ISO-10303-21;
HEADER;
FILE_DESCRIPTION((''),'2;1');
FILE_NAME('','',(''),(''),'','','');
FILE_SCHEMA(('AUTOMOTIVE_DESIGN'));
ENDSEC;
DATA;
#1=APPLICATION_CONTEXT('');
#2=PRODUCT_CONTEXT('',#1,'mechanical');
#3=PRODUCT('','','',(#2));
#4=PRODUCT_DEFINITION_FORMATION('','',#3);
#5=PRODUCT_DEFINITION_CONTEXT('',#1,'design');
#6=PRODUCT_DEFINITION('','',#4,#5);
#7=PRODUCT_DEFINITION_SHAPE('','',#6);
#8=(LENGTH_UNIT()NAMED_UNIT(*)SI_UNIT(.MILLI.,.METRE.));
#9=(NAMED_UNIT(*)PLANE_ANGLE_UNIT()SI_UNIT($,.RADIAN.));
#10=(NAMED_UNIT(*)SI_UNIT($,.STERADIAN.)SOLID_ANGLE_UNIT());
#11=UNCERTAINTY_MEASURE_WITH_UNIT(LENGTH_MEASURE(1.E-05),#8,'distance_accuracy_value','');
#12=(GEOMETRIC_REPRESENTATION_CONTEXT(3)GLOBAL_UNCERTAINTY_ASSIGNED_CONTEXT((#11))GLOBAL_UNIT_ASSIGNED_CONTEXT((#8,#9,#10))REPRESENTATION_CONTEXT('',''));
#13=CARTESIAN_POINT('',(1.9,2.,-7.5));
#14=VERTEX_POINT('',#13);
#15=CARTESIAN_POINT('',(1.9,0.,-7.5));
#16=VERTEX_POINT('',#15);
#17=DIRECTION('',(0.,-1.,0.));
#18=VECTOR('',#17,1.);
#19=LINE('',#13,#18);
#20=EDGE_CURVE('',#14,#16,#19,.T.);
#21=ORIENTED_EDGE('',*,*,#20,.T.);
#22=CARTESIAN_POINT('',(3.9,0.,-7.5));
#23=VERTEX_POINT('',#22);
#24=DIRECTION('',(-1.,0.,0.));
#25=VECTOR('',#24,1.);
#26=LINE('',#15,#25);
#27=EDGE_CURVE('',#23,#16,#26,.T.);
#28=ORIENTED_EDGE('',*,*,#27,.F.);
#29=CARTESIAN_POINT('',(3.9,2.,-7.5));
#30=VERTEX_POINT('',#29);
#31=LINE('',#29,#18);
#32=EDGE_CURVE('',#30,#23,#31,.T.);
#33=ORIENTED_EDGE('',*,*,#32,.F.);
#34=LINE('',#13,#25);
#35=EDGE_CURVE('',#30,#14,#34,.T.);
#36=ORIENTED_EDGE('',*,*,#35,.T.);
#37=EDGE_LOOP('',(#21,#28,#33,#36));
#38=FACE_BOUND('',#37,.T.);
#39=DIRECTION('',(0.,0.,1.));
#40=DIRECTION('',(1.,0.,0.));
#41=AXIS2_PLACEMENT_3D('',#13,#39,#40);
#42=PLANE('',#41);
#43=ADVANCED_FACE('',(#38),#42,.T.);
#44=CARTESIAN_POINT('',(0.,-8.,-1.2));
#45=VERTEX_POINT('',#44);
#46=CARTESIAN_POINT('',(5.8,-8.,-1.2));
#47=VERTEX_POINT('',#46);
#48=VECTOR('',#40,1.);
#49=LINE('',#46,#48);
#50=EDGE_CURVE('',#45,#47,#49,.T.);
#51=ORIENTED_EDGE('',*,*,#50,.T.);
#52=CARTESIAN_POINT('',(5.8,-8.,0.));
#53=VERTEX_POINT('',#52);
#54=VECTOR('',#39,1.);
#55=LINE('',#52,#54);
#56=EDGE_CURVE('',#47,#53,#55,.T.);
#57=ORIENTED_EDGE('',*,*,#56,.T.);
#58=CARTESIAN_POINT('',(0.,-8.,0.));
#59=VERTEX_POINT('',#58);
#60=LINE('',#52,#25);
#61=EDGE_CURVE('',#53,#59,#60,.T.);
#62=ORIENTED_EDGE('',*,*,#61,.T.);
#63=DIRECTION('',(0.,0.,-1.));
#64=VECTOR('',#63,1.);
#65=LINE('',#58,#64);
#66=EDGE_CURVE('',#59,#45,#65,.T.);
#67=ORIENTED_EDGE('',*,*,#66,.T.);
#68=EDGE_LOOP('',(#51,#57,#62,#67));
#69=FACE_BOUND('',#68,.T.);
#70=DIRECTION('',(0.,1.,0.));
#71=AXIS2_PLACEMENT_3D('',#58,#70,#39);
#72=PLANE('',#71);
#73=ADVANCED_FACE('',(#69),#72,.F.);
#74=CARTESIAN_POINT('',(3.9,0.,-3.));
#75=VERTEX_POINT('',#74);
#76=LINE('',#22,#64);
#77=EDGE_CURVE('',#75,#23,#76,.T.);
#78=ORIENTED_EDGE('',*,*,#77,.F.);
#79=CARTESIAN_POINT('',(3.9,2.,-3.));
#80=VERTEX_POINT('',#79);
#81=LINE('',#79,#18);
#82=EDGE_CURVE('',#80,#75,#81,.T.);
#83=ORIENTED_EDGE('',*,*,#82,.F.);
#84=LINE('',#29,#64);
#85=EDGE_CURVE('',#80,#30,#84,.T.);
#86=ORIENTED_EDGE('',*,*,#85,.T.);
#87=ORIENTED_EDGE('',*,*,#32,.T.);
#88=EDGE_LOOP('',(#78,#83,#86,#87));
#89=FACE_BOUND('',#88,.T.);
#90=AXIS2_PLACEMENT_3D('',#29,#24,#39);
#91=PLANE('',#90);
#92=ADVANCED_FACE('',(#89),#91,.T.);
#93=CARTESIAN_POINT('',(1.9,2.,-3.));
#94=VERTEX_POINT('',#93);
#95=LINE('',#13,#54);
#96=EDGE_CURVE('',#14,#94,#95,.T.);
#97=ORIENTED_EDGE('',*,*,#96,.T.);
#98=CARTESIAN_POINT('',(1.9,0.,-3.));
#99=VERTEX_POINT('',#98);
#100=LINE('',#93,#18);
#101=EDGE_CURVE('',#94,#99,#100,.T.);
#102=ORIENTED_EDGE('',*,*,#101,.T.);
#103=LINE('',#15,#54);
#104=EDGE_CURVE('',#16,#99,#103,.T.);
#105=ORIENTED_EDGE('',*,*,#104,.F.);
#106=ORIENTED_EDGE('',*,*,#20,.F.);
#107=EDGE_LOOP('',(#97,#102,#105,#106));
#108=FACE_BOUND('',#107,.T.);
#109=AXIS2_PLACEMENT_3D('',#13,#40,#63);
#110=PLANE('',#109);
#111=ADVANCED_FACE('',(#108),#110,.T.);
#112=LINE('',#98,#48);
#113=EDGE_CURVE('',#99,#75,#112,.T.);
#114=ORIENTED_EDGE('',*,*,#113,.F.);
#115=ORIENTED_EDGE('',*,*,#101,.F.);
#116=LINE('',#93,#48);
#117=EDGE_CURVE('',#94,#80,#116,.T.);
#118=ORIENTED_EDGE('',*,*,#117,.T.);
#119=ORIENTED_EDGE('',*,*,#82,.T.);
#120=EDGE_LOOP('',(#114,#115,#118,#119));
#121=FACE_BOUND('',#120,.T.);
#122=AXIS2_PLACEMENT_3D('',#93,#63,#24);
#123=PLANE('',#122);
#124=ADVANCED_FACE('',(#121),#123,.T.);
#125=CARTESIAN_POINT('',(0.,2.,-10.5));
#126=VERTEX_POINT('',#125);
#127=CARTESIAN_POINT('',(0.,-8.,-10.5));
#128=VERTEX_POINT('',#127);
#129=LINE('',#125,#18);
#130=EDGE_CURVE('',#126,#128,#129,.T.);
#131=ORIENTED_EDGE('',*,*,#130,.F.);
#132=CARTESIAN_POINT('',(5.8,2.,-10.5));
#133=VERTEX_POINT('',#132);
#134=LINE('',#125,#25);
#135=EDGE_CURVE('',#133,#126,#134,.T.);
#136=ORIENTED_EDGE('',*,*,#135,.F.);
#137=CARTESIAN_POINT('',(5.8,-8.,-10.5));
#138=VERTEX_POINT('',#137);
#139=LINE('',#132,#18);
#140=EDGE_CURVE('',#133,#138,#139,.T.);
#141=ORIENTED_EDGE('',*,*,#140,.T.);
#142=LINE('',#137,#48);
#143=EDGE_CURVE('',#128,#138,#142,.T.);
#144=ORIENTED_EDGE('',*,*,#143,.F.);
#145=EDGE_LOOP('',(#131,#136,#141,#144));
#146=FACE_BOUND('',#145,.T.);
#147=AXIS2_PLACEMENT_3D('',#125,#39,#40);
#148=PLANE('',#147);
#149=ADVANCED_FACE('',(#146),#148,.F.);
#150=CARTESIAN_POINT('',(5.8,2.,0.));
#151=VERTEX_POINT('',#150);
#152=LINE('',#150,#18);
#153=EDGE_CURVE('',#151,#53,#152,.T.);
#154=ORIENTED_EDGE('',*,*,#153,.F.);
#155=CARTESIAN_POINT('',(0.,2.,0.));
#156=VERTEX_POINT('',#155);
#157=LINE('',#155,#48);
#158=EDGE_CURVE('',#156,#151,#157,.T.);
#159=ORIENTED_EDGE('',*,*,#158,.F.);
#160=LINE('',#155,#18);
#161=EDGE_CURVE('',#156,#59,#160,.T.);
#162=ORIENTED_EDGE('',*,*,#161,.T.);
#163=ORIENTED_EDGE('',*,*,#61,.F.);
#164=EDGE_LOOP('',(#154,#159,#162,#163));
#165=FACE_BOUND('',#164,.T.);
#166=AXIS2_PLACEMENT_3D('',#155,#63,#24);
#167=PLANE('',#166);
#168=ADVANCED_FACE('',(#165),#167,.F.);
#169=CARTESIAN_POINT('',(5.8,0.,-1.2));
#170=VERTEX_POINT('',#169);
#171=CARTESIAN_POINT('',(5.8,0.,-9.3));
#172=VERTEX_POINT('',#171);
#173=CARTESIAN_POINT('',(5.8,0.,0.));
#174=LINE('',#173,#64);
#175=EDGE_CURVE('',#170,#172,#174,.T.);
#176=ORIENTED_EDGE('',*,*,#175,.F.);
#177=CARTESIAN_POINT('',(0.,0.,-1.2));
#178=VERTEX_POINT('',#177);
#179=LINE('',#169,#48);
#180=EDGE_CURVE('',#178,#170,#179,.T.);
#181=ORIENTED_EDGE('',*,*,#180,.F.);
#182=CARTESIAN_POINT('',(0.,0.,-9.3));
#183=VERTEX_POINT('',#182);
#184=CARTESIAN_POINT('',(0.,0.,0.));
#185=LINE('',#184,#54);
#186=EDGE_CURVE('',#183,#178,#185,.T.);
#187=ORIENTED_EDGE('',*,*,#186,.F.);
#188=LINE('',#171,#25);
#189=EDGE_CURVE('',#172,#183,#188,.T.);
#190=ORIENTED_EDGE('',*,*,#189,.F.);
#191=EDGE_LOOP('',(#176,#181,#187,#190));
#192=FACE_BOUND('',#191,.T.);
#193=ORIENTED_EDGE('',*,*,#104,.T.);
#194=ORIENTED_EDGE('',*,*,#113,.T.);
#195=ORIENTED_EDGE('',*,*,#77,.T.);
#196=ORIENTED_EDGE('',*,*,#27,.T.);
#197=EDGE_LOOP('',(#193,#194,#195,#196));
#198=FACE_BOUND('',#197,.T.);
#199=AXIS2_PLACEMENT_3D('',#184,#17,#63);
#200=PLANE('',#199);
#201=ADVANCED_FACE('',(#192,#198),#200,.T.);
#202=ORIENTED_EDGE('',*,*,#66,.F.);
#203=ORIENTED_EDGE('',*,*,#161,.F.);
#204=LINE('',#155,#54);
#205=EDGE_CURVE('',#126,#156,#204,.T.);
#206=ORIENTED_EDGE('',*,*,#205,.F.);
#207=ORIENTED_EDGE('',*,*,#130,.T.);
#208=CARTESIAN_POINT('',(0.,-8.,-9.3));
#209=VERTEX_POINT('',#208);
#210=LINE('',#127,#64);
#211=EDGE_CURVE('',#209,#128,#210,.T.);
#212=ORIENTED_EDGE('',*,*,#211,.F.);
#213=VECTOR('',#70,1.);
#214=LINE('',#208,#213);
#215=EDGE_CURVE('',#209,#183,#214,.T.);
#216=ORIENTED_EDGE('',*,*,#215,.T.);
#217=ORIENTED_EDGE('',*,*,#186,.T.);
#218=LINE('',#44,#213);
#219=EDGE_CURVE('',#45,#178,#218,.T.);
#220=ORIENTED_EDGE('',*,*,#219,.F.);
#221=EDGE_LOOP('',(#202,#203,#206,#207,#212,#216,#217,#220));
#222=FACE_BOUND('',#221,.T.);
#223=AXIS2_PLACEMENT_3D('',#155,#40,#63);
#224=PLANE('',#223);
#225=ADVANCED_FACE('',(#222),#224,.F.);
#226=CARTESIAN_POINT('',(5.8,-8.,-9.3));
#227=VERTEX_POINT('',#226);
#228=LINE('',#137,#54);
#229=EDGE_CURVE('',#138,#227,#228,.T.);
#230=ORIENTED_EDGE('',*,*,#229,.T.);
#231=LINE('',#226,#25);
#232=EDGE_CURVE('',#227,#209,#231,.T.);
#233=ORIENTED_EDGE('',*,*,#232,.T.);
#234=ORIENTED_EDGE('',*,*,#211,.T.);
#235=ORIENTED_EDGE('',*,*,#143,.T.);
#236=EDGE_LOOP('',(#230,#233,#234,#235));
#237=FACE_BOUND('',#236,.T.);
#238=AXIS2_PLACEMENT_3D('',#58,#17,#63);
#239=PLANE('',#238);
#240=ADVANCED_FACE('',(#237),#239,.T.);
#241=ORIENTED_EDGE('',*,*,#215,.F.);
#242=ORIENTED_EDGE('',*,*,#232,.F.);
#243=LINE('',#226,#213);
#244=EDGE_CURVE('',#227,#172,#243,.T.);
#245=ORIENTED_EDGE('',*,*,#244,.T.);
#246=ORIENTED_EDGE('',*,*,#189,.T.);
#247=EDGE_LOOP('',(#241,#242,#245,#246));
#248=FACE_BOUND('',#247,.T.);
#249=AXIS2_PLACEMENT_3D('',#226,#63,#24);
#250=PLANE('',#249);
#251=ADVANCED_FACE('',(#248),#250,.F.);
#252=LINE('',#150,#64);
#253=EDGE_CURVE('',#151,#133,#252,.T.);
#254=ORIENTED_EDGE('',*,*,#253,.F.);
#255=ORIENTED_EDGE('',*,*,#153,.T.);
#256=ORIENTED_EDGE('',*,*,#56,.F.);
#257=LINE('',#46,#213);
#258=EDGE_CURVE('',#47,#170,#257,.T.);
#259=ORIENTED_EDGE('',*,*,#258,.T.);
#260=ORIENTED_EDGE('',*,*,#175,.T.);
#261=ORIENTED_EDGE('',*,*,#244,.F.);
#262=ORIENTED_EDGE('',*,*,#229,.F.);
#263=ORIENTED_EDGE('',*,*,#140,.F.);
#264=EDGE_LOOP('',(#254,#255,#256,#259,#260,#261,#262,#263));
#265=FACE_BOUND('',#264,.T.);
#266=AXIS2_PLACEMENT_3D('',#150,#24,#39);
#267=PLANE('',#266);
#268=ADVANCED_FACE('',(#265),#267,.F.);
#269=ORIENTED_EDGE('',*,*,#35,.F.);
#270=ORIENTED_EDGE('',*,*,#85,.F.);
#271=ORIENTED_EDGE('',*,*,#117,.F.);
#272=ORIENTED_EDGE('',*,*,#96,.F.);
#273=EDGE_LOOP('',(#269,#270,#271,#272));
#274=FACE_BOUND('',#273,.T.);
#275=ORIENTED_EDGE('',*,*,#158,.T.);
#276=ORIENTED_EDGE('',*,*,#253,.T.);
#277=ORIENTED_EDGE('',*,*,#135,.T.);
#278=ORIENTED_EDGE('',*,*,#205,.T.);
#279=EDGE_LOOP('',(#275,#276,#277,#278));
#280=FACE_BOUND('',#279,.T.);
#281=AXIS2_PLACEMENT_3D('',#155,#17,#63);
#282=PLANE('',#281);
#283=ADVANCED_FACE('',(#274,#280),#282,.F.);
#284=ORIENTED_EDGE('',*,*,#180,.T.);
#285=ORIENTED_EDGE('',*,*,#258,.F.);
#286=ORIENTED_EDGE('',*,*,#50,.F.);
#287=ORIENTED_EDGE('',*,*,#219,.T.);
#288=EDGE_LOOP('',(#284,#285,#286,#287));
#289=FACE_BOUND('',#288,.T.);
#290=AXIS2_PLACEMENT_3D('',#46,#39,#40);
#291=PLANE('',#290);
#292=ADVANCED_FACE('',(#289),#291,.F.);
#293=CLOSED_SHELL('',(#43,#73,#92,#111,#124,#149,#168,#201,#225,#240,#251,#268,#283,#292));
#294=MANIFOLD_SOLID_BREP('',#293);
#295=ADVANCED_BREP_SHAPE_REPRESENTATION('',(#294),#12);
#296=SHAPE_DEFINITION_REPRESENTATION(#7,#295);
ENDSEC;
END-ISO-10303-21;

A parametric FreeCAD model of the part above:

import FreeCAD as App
import Part
import Sketcher
Q = App.Units.Quantity


def add_polygon(sketch, points):
    """Adds a closed chain of lines whose ends are joined by coincident constraints."""
    first, n = sketch.GeometryCount, len(points)
    for a, b in zip(points, points[1:] + points[:1]):
        sketch.addGeometry(Part.LineSegment(App.Vector(*a, 0), App.Vector(*b, 0)), False)
    for i in range(n):
        sketch.addConstraint(Sketcher.Constraint("Coincident", first + i, 2, first + (i + 1) % n, 1))

doc = App.newDocument("Part")
params = doc.addObject("Spreadsheet::Sheet", "Params")
for row, (alias, value) in enumerate([
    ("sketch1_width", "2 mm"),
    ("sketch1_width2", "5.8 mm"),
    ("sketch1_height", "10.5 mm"),
    ("sketch1_height2", "4.5 mm"),
    ("pad1_length", "2 mm"),
    ("sketch2_width", "5.8 mm"),
    ("sketch2_height", "1.2 mm"),
    ("pad2_length", "8 mm"),
], start=1):
    params.set(f"A{row}", alias)
    params.set(f"B{row}", "=" + value)
    params.setAlias(f"B{row}", alias)

body = doc.addObject("PartDesign::Body", "Body")

sketch1 = body.newObject("Sketcher::SketchObject", "Sketch")
sketch1.AttachmentSupport = (doc.getObject("XZ_Plane"), [""])
sketch1.MapMode = "FlatFace"
add_polygon(sketch1, [(0, -10.5), (0, 0), (5.8, 0), (5.8, -10.5)])
add_polygon(sketch1, [(3.9, -3), (1.9, -3), (1.9, -7.5), (3.9, -7.5)])
sketch1.addConstraint([
    Sketcher.Constraint("Vertical", 0),
    Sketcher.Constraint("Horizontal", 1),
    Sketcher.Constraint("Vertical", 2),
    Sketcher.Constraint("Horizontal", 3),
    Sketcher.Constraint("Horizontal", 4),
    Sketcher.Constraint("Vertical", 5),
    Sketcher.Constraint("Horizontal", 6),
    Sketcher.Constraint("Vertical", 7),
    Sketcher.Constraint("Coincident", 0, 2, -1, 1),
    Sketcher.Constraint("DistanceX", 4, 2, 4, 1, Q("2 mm")),
    Sketcher.Constraint("DistanceX", 1, 1, 1, 2, Q("5.8 mm")),
    Sketcher.Constraint("DistanceY", 0, 1, 0, 2, Q("10.5 mm")),
    Sketcher.Constraint("DistanceY", 5, 2, 5, 1, Q("4.5 mm")),
    Sketcher.Constraint("DistanceY", 4, 2, -1, 1, Q("3 mm")),
    Sketcher.Constraint("DistanceX", -1, 1, 4, 2, Q("1.9 mm")),
])
sketch1.setExpression("Constraints[17]", "Params.sketch1_width")
sketch1.setExpression("Constraints[18]", "Params.sketch1_width2")
sketch1.setExpression("Constraints[19]", "Params.sketch1_height")
sketch1.setExpression("Constraints[20]", "Params.sketch1_height2")
pad1 = body.newObject("PartDesign::Pad", "Pad")
pad1.Profile = sketch1
pad1.setExpression("Length", "Params.pad1_length")
pad1.Reversed = True

sketch2 = body.newObject("Sketcher::SketchObject", "Sketch001")
sketch2.AttachmentSupport = (doc.getObject("XZ_Plane"), [""])
sketch2.MapMode = "FlatFace"
add_polygon(sketch2, [(5.8, -10.5), (5.8, -9.3), (0, -9.3), (0, -10.5)])
add_polygon(sketch2, [(5.8, -1.2), (5.8, 0), (0, 0), (0, -1.2)])
sketch2.addConstraint([
    Sketcher.Constraint("Vertical", 0),
    Sketcher.Constraint("Horizontal", 1),
    Sketcher.Constraint("Vertical", 2),
    Sketcher.Constraint("Horizontal", 3),
    Sketcher.Constraint("Vertical", 4),
    Sketcher.Constraint("Horizontal", 5),
    Sketcher.Constraint("Vertical", 6),
    Sketcher.Constraint("Horizontal", 7),
    Sketcher.Constraint("Coincident", 5, 2, -1, 1),
    Sketcher.Constraint("PointOnObject", 1, 2, -2),
    Sketcher.Constraint("Vertical", 3, 2, 4, 2),
    Sketcher.Constraint("Equal", 2, 4),
    Sketcher.Constraint("DistanceX", 1, 2, 1, 1, Q("5.8 mm")),
    Sketcher.Constraint("DistanceY", 0, 1, 0, 2, Q("1.2 mm")),
    Sketcher.Constraint("DistanceY", 0, 2, -1, 1, Q("9.3 mm")),
])
sketch2.setExpression("Constraints[20]", "Params.sketch2_width")
sketch2.setExpression("Constraints[21]", "Params.sketch2_height")
pad2 = body.newObject("PartDesign::Pad", "Pad001")
pad2.Profile = sketch2
pad2.setExpression("Length", "Params.pad2_length")

doc.recompute()
